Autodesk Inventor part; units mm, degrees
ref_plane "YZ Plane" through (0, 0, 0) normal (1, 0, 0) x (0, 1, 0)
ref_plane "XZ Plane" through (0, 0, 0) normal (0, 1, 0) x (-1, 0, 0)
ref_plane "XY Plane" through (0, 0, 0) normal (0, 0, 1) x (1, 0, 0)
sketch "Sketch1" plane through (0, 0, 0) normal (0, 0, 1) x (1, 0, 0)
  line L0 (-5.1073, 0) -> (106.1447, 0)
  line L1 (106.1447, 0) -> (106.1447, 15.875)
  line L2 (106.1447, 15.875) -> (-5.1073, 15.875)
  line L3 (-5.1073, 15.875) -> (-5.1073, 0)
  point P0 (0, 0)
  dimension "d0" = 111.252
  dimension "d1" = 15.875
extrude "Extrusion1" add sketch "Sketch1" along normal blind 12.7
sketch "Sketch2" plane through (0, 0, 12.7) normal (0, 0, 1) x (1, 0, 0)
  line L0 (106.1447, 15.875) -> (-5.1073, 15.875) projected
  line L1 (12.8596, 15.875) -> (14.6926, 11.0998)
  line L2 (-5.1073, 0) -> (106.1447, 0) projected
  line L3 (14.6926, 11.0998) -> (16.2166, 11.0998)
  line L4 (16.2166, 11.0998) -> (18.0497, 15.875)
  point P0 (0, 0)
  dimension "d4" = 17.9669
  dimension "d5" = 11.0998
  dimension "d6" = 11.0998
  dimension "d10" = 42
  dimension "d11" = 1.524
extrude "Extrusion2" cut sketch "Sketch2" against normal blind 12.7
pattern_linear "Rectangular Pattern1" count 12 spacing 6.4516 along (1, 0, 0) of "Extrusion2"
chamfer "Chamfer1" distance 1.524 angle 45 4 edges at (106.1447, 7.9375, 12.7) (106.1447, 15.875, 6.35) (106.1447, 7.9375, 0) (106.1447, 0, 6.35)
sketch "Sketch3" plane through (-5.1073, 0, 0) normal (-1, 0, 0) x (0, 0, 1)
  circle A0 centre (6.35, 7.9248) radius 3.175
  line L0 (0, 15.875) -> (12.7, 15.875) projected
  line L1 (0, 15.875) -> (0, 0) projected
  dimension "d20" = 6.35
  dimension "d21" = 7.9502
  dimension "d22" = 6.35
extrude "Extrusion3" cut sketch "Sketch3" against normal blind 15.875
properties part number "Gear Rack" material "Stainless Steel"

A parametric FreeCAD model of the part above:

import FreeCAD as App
import Part
import Sketcher

V = App.Vector
Q = App.Units.Quantity


def edges_at(feature, points):
    """Names of the edges that pass closest to the given points."""
    edges = feature.Shape.Edges
    near = lambda p: min(range(len(edges)), key=lambda i: edges[i].distToShape(Part.Vertex(*p))[0])
    return sorted({f"Edge{near(p) + 1}" for p in points})


def add_polygon(sketch, points):
    """Adds a closed chain of lines whose ends are joined by coincident constraints."""
    first, n = sketch.GeometryCount, len(points)
    for a, b in zip(points, points[1:] + points[:1]):
        sketch.addGeometry(Part.LineSegment(App.Vector(*a, 0), App.Vector(*b, 0)), False)
    for i in range(n):
        sketch.addConstraint(Sketcher.Constraint("Coincident", first + i, 2, first + (i + 1) % n, 1))

doc = App.newDocument("Part")
body = doc.addObject("PartDesign::Body", "Body")

# Sketch on XY plane
sketch1 = doc.addObject("Sketcher::SketchObject", "Sketch")
body.addObject(sketch1)
sketch1.AttachmentSupport = (doc.XY_Plane, [""])
sketch1.MapMode = "FlatFace"
add_polygon(sketch1, [(-5, 16), (-5, 0), (106, 0), (106, 16)])  # lines 0-3
sketch1.addConstraint([
    Sketcher.Constraint("Vertical", 0),
    Sketcher.Constraint("Horizontal", 1),
    Sketcher.Constraint("Vertical", 2),
    Sketcher.Constraint("Horizontal", 3),
    Sketcher.Constraint("PointOnObject", 0, 2, -1),
    Sketcher.Constraint("DistanceX", 1, 1, 1, 2, Q("4.38 in")),
    Sketcher.Constraint("DistanceY", 0, 2, 0, 1, Q("0.625 in")),
    Sketcher.Constraint("DistanceX", 0, 2, -1, 1, Q("5.1073 mm")),
])
pad1 = doc.addObject("PartDesign::Pad", "Pad")
body.addObject(pad1)
pad1.Profile = sketch1
pad1.Length = Q("0.5 in")

# Sketch on XY plane
sketch2 = doc.addObject("Sketcher::SketchObject", "Sketch001")
body.addObject(sketch2)
sketch2.AttachmentSupport = (doc.XY_Plane, [""])
sketch2.MapMode = "FlatFace"
sketch2.AttachmentOffset = App.Placement(V(0, 0, 0.5 * 25.4), App.Rotation())
add_polygon(sketch2, [(16.2, 11.1), (18, 15.9), (12.9, 15.9), (14.7, 11.1)])  # lines 0-3
sketch2.addConstraint([
    Sketcher.Constraint("Horizontal", 1),
    Sketcher.Constraint("Horizontal", 3),
    Sketcher.Constraint("Equal", 0, 2),
    Sketcher.Constraint("DistanceX", 3, 1, 3, 2, Q("0.06 in")),
    Sketcher.Constraint("DistanceY", -1, 1, 2, 2, Q("0.437 in")),
    Sketcher.Constraint("Angle", 0, Q("68.9992 deg")),
    Sketcher.Constraint("DistanceY", -1, 1, 0, 2, Q("0.625 in")),
    Sketcher.Constraint("DistanceX", -1, 1, 0, 2, Q("18.0497 mm")),
])
pocket1 = doc.addObject("PartDesign::Pocket", "Pocket")
body.addObject(pocket1)
pocket1.Profile = sketch2
pocket1.Length = Q("0.5 in")
doc.recompute()

linearpattern = doc.addObject("PartDesign::LinearPattern", "LinearPattern")
body.addObject(linearpattern)
linearpattern.Originals = [pocket1]
linearpattern.Direction = (doc.X_Axis, [""])
linearpattern.Mode = "offset"
linearpattern.Offset = Q("0.254 in")
linearpattern.Occurrences = 12
body.Tip = linearpattern
doc.recompute()

chamfer = doc.addObject("PartDesign::Chamfer", "Chamfer")
body.addObject(chamfer)
chamfer.Base = (linearpattern, edges_at(linearpattern, [
    (106.145, 7.938, 12.7),
    (106.145, 15.875, 6.35),
    (106.145, 7.938, 0),
    (106.145, 0, 6.35),
]))
chamfer.Size = Q("0.06 in")

# Sketch on YZ plane
sketch3 = doc.addObject("Sketcher::SketchObject", "Sketch002")
body.addObject(sketch3)
sketch3.AttachmentSupport = (doc.YZ_Plane, [""])
sketch3.MapMode = "FlatFace"
sketch3.AttachmentOffset = App.Placement(V(0, 0, -5.1073), App.Rotation())
sketch3.addGeometry(Part.Circle(V(7.9, 6.3, 0), V(0, 0, 1), 3.2), False)
sketch3.addConstraint([
    Sketcher.Constraint("Diameter", 0, Q("0.25 in")),
    Sketcher.Constraint("DistanceY", -1, 1, 0, 3, Q("0.25 in")),
    Sketcher.Constraint("DistanceX", -1, 1, 0, 3, Q("0.312 in")),
])
pocket2 = doc.addObject("PartDesign::Pocket", "Pocket001")
body.addObject(pocket2)
pocket2.Profile = sketch3
pocket2.Length = Q("0.625 in")
pocket2.Reversed = True

doc.recompute()
